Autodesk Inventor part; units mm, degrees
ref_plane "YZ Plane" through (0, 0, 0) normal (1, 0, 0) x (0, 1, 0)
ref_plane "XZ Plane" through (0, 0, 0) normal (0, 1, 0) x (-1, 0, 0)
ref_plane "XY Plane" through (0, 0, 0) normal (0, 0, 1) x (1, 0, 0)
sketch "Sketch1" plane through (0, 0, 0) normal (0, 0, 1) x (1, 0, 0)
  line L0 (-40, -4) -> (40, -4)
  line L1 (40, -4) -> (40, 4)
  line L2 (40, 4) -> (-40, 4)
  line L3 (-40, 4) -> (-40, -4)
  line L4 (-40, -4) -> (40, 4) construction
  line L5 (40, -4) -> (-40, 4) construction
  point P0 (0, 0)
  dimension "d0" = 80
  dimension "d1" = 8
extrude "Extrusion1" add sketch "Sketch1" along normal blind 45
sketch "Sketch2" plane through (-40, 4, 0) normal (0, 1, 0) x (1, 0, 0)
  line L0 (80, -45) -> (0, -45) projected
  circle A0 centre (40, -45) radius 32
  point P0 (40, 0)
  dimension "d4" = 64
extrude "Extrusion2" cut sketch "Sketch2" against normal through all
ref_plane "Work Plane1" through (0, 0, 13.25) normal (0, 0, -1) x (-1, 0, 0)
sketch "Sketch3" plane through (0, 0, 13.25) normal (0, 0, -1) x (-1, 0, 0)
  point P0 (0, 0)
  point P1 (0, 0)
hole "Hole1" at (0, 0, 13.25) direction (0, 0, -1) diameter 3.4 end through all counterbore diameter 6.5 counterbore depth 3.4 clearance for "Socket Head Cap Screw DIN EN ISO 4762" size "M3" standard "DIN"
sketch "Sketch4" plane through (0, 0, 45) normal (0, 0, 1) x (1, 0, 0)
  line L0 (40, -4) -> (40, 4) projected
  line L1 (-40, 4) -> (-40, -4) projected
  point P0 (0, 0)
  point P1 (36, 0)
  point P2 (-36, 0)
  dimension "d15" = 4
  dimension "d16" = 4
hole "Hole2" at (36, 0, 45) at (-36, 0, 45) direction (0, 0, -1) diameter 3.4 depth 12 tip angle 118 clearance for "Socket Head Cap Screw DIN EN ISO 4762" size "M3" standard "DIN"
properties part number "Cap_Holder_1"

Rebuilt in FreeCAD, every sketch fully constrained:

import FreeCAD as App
import Part
import Sketcher
from FreeCAD import Vector


def add_polygon(sketch, points):
    """Adds a closed chain of lines whose ends are joined by coincident constraints."""
    first, n = sketch.GeometryCount, len(points)
    for a, b in zip(points, points[1:] + points[:1]):
        sketch.addGeometry(Part.LineSegment(App.Vector(*a, 0), App.Vector(*b, 0)), False)
    for i in range(n):
        sketch.addConstraint(Sketcher.Constraint("Coincident", first + i, 2, first + (i + 1) % n, 1))

doc = App.newDocument("Part")
body = doc.addObject("PartDesign::Body", "Body")

# Sketch on XY plane
sketch1 = body.newObject("Sketcher::SketchObject", "Sketch")
sketch1.AttachmentSupport = (doc.getObject("XY_Plane"), [""])
sketch1.MapMode = "FlatFace"
add_polygon(sketch1, [(-40, 4), (-40, -4), (40, -4), (40, 4)])  # lines 0-3
sketch1.addConstraint(Sketcher.Constraint("Vertical", 0))
sketch1.addConstraint(Sketcher.Constraint("Horizontal", 1))
sketch1.addConstraint(Sketcher.Constraint("Vertical", 2))
sketch1.addConstraint(Sketcher.Constraint("Horizontal", 3))
sketch1.addConstraint(Sketcher.Constraint("Symmetric", 0, 2, 2, 2, -1, 1))
sketch1.addConstraint(Sketcher.Constraint("DistanceX", 1, 1, 1, 2, 80.0))
sketch1.addConstraint(Sketcher.Constraint("DistanceY", 0, 2, 0, 1, 8.0))
pad1 = body.newObject("PartDesign::Pad", "Pad")
pad1.Profile = sketch1
pad1.Length = 45

# Sketch on XZ plane
sketch2 = body.newObject("Sketcher::SketchObject", "Sketch001")
sketch2.AttachmentSupport = (doc.getObject("XZ_Plane"), [""])
sketch2.MapMode = "FlatFace"
sketch2.AttachmentOffset = App.Placement(Vector(0, 0, -4), App.Rotation())
sketch2.addGeometry(Part.Circle(Vector(0, 45, 0), Vector(0, 0, 1), 32), False)
sketch2.addConstraint(Sketcher.Constraint("PointOnObject", 0, 3, -2))
sketch2.addConstraint(Sketcher.Constraint("Diameter", 0, 64.0))
sketch2.addConstraint(Sketcher.Constraint("DistanceY", -1, 1, 0, 3, 45.0))
pocket1 = body.newObject("PartDesign::Pocket", "Pocket")
pocket1.Profile = sketch2
pocket1.Type = "ThroughAll"
pocket1.Reversed = True

# Sketch on XY plane
sketch3 = body.newObject("Sketcher::SketchObject", "Sketch002")
sketch3.AttachmentSupport = (doc.getObject("XY_Plane"), [""])
sketch3.MapMode = "FlatFace"
sketch3.AttachmentOffset = App.Placement(Vector(0, 0, 13.25), App.Rotation())
sketch3.addGeometry(Part.Circle(Vector(0, 0, 0), Vector(0, 0, 1), 1.7), False)
sketch3.addConstraint(Sketcher.Constraint("Coincident", 0, 3, -1, 1))
sketch3.addConstraint(Sketcher.Constraint("Diameter", 0, 3.4))
doc.recompute()
hole = body.newObject("PartDesign::Hole", "Hole")
hole.Profile = sketch3
hole.ThreadType = "None"
hole.Diameter = 3.4
hole.DepthType = "ThroughAll"
hole.HoleCutType = "Counterbore"
hole.HoleCutDiameter = 6.5
hole.HoleCutDepth = 3.4

# Sketch on XY plane
sketch4 = body.newObject("Sketcher::SketchObject", "Sketch003")
sketch4.AttachmentSupport = (doc.getObject("XY_Plane"), [""])
sketch4.MapMode = "FlatFace"
sketch4.AttachmentOffset = App.Placement(Vector(0, 0, 45), App.Rotation())
sketch4.addGeometry(Part.Circle(Vector(36, 0, 0), Vector(0, 0, 1), 1.7), False)
sketch4.addGeometry(Part.Circle(Vector(-36, 0, 0), Vector(0, 0, 1), 1.7), False)
sketch4.addConstraint(Sketcher.Constraint("Equal", 0, 1))
sketch4.addConstraint(Sketcher.Constraint("Symmetric", 0, 3, 1, 3, -1, 1))
sketch4.addConstraint(Sketcher.Constraint("PointOnObject", 0, 3, -1))
sketch4.addConstraint(Sketcher.Constraint("Diameter", 0, 3.4))
sketch4.addConstraint(Sketcher.Constraint("DistanceX", -1, 1, 0, 3, 36.0))
doc.recompute()
hole2 = body.newObject("PartDesign::Hole", "Hole001")
hole2.Profile = sketch4
hole2.ThreadType = "None"
hole2.Diameter = 3.4
hole2.DepthType = "Dimension"
hole2.Depth = 12
hole2.DrillPoint = "Angled"
hole2.DrillPointAngle = 118

doc.recompute()
